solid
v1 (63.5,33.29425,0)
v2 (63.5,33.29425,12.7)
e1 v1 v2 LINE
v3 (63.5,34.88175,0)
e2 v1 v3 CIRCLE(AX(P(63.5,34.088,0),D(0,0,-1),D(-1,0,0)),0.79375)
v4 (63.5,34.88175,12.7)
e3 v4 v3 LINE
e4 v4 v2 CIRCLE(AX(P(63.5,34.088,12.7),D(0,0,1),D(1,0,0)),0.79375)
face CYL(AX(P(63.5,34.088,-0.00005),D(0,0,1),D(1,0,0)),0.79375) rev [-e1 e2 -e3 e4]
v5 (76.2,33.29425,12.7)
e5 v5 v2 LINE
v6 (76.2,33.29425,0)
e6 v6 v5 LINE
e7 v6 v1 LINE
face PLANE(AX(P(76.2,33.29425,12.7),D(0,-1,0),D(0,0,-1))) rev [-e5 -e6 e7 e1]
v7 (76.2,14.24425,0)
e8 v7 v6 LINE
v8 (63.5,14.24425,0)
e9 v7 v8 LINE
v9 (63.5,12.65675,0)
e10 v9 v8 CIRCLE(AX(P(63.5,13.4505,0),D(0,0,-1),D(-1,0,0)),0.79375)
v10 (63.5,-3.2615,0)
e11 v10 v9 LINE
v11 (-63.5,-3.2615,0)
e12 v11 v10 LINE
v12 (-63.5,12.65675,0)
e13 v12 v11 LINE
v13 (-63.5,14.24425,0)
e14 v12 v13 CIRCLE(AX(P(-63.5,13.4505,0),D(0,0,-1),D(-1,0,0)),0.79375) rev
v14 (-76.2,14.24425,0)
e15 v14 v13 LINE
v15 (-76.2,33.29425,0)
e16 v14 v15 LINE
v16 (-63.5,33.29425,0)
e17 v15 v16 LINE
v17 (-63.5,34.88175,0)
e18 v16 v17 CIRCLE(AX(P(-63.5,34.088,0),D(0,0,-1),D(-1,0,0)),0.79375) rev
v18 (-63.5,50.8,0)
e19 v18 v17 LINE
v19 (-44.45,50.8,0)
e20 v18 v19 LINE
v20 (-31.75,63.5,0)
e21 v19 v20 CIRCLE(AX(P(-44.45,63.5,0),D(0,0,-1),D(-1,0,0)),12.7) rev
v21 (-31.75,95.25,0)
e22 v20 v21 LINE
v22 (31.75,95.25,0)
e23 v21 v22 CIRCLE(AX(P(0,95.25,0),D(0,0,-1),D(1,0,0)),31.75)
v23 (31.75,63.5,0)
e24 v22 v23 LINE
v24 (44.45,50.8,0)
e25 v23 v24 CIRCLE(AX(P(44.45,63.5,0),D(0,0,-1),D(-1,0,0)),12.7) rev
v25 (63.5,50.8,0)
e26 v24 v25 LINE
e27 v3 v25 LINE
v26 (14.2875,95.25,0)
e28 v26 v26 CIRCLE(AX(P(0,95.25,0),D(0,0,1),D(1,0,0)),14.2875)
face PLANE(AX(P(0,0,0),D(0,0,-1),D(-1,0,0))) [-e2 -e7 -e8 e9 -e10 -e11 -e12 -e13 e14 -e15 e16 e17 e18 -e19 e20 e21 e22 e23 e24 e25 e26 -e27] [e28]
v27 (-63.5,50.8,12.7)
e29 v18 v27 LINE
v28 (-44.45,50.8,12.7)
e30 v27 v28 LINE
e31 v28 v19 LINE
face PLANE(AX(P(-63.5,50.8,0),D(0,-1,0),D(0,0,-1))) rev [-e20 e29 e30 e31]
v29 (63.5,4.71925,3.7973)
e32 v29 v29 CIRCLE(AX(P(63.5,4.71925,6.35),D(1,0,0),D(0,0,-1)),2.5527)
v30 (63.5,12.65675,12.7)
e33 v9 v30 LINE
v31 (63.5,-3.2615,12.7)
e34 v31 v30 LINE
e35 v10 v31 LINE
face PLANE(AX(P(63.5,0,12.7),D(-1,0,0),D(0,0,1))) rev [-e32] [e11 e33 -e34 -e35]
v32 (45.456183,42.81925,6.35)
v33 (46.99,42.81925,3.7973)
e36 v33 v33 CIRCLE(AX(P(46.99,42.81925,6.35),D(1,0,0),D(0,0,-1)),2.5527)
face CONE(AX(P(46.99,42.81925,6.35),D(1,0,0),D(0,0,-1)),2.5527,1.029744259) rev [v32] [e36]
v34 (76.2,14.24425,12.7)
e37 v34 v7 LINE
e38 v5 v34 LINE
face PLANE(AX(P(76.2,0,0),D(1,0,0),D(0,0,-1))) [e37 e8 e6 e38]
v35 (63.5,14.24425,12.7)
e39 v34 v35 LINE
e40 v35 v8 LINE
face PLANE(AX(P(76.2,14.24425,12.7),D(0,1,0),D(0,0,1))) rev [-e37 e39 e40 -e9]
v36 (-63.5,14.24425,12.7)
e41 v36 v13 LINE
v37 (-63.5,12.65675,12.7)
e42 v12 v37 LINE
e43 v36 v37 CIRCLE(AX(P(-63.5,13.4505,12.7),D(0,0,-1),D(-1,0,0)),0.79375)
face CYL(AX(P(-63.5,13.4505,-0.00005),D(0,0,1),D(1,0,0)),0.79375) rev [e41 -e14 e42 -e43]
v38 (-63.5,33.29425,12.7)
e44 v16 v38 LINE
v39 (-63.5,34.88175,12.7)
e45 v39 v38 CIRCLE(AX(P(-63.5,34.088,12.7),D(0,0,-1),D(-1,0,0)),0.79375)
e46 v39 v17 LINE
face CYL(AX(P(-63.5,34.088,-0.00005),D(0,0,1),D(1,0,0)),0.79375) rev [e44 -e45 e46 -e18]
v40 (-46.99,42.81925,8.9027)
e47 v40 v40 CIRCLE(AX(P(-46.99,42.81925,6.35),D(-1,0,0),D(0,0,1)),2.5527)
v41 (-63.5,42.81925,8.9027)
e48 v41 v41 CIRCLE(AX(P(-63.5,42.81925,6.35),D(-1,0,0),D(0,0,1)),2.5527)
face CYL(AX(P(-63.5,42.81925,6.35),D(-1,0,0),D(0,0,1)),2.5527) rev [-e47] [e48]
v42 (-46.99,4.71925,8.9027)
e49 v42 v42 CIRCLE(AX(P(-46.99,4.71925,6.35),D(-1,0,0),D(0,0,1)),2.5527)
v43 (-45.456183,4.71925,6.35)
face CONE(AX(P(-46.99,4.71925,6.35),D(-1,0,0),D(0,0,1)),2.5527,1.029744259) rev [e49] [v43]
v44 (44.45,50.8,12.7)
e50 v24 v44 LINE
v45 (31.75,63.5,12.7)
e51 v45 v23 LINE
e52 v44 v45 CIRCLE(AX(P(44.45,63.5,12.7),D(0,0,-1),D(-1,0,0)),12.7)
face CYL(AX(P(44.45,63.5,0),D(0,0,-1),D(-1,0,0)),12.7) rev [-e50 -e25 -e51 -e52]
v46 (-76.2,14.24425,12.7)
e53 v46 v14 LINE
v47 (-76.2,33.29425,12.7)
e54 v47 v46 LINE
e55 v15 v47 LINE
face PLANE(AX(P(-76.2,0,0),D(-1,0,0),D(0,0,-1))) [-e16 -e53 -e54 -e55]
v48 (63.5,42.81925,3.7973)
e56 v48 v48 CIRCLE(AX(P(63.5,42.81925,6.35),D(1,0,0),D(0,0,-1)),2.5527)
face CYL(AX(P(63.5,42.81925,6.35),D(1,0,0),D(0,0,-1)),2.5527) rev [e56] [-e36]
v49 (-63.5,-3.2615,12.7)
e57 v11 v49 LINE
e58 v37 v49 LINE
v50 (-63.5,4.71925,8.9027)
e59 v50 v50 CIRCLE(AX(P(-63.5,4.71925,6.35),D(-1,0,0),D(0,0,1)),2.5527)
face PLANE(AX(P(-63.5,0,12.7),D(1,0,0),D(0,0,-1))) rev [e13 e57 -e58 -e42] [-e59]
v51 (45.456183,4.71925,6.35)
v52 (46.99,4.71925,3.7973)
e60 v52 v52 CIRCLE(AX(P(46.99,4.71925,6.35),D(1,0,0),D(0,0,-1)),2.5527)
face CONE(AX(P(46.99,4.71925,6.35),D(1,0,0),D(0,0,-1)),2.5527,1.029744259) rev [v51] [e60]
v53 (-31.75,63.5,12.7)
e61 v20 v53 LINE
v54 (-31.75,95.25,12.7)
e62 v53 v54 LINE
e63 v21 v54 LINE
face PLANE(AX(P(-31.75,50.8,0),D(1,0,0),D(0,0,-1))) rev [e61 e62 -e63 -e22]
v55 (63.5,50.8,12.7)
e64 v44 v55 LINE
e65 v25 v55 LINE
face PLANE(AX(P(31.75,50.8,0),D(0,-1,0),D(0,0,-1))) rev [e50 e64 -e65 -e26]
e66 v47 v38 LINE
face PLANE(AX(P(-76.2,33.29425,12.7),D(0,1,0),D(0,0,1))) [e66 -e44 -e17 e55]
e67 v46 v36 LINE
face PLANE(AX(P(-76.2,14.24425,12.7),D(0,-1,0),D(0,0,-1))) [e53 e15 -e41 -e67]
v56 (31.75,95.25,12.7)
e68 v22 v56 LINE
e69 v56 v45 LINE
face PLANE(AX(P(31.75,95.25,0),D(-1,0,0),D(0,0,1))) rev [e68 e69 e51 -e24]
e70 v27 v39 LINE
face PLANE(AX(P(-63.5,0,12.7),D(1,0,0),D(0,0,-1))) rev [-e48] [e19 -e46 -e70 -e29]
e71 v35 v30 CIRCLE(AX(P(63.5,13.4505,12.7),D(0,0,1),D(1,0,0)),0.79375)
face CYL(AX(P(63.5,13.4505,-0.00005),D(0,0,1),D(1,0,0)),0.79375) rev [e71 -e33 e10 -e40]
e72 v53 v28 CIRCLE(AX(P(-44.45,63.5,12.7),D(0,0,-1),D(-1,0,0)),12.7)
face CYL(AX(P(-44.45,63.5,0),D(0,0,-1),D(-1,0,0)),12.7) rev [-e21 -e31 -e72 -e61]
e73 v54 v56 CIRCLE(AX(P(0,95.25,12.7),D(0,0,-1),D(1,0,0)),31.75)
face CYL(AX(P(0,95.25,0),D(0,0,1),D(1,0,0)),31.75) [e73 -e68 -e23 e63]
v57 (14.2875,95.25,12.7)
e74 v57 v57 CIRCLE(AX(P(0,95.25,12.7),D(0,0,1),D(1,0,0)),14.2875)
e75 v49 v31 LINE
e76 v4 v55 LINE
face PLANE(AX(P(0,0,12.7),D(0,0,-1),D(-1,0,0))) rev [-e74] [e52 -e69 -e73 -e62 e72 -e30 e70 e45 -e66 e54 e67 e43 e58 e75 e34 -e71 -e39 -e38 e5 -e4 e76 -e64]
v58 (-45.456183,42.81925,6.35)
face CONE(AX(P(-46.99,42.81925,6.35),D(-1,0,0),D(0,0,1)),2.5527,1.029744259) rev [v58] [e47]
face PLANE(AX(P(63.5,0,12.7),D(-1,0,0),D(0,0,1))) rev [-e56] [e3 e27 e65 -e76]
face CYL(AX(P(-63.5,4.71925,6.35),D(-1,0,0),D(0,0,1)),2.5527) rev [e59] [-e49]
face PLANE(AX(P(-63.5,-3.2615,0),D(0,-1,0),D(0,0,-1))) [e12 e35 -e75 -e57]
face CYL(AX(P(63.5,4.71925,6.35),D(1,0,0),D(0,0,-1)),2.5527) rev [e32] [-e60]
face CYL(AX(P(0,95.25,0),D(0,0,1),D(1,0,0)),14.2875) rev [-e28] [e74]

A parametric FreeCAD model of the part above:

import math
import FreeCAD as App
import Part
import Sketcher
Q = App.Units.Quantity


def edges_at(feature, points):
    """Names of the edges that pass closest to the given points."""
    edges = feature.Shape.Edges
    near = lambda p: min(range(len(edges)), key=lambda i: edges[i].distToShape(Part.Vertex(*p))[0])
    return sorted({f"Edge{near(p) + 1}" for p in points})


def add_polygon(sketch, points):
    """Adds a closed chain of lines whose ends are joined by coincident constraints."""
    first, n = sketch.GeometryCount, len(points)
    for a, b in zip(points, points[1:] + points[:1]):
        sketch.addGeometry(Part.LineSegment(App.Vector(*a, 0), App.Vector(*b, 0)), False)
    for i in range(n):
        sketch.addConstraint(Sketcher.Constraint("Coincident", first + i, 2, first + (i + 1) % n, 1))

doc = App.newDocument("Part")
body = doc.addObject("PartDesign::Body", "Body")

# Sketch on XY plane
sketch1 = body.newObject("Sketcher::SketchObject", "Sketch")
sketch1.AttachmentSupport = (doc.getObject("XY_Plane"), [""])
sketch1.MapMode = "FlatFace"
add_polygon(sketch1, [(-64, 152), (-64, 0), (64, 0), (64, 152)])  # lines 0-3
sketch1.addConstraint(Sketcher.Constraint("Vertical", 0))
sketch1.addConstraint(Sketcher.Constraint("Horizontal", 1))
sketch1.addConstraint(Sketcher.Constraint("Vertical", 2))
sketch1.addConstraint(Sketcher.Constraint("Horizontal", 3))
sketch1.addConstraint(Sketcher.Constraint("Symmetric", 0, 2, 1, 2, -1, 1))
sketch1.addConstraint(Sketcher.Constraint("DistanceX", 1, 1, 1, 2, Q("5 in")))
sketch1.addConstraint(Sketcher.Constraint("DistanceY", 0, 2, 0, 1, Q("6 in")))
pad1 = body.newObject("PartDesign::Pad", "Pad")
pad1.Profile = sketch1
pad1.Length = Q("0.5 in")

# Sketch on XY plane
sketch2 = body.newObject("Sketcher::SketchObject", "Sketch001")
sketch2.AttachmentSupport = (doc.getObject("XY_Plane"), [""])
sketch2.MapMode = "FlatFace"
sketch2.AttachmentOffset = App.Placement(App.Vector(0, 0, 0.5 * 25.4), App.Rotation())
sketch2.addGeometry(Part.Circle(App.Vector(0, 95, 0), App.Vector(0, 0, 1), 14), False)
sketch2.addGeometry(Part.LineSegment(App.Vector(32, 95, 0), App.Vector(32, 51, 0)), False)
sketch2.addGeometry(Part.LineSegment(App.Vector(32, 51, 0), App.Vector(64, 51, 0)), False)
sketch2.addGeometry(Part.LineSegment(App.Vector(64, 51, 0), App.Vector(64, 152, 0)), False)
sketch2.addGeometry(Part.LineSegment(App.Vector(64, 152, 0), App.Vector(-64, 152, 0)), False)
sketch2.addGeometry(Part.LineSegment(App.Vector(-64, 152, 0), App.Vector(-64, 51, 0)), False)
sketch2.addGeometry(Part.LineSegment(App.Vector(-64, 51, 0), App.Vector(-32, 51, 0)), False)
sketch2.addGeometry(Part.LineSegment(App.Vector(-32, 51, 0), App.Vector(-32, 95, 0)), False)
sketch2.addGeometry(Part.ArcOfCircle(Part.Circle(App.Vector(0, 95, 0), App.Vector(0, 0, 1), 32), math.radians(0), math.radians(180)), False)
sketch2.addConstraint(Sketcher.Constraint("Coincident", 1, 2, 2, 1))
sketch2.addConstraint(Sketcher.Constraint("Coincident", 2, 2, 3, 1))
sketch2.addConstraint(Sketcher.Constraint("Coincident", 3, 2, 4, 1))
sketch2.addConstraint(Sketcher.Constraint("Coincident", 4, 2, 5, 1))
sketch2.addConstraint(Sketcher.Constraint("Coincident", 5, 2, 6, 1))
sketch2.addConstraint(Sketcher.Constraint("Coincident", 6, 2, 7, 1))
sketch2.addConstraint(Sketcher.Constraint("Tangent", 7, 2, 8, 2))
sketch2.addConstraint(Sketcher.Constraint("Tangent", 8, 1, 1, 1))
sketch2.addConstraint(Sketcher.Constraint("Vertical", 1))
sketch2.addConstraint(Sketcher.Constraint("Horizontal", 2))
sketch2.addConstraint(Sketcher.Constraint("Vertical", 3))
sketch2.addConstraint(Sketcher.Constraint("Horizontal", 4))
sketch2.addConstraint(Sketcher.Constraint("Vertical", 5))
sketch2.addConstraint(Sketcher.Constraint("Horizontal", 6))
sketch2.addConstraint(Sketcher.Constraint("Vertical", 7))
sketch2.addConstraint(Sketcher.Constraint("Coincident", 8, 3, 0, 3))
sketch2.addConstraint(Sketcher.Constraint("Symmetric", 2, 2, 5, 2, -2))
sketch2.addConstraint(Sketcher.Constraint("PointOnObject", 0, 3, -2))
sketch2.addConstraint(Sketcher.Constraint("DistanceX", 4, 2, 4, 1, Q("5 in")))
sketch2.addConstraint(Sketcher.Constraint("DistanceY", 3, 1, 3, 2, Q("4 in")))
sketch2.addConstraint(Sketcher.Constraint("Radius", 8, Q("1.25 in")))
sketch2.addConstraint(Sketcher.Constraint("Diameter", 0, Q("1.125 in")))
sketch2.addConstraint(Sketcher.Constraint("DistanceY", -1, 1, 1, 2, Q("2 in")))
sketch2.addConstraint(Sketcher.Constraint("DistanceY", 1, 2, 1, 1, Q("1.75 in")))
pocket1 = body.newObject("PartDesign::Pocket", "Pocket")
pocket1.Profile = sketch2
pocket1.Type = "ThroughAll"
doc.recompute()

fillet = body.newObject("PartDesign::Fillet", "Fillet")
fillet.Base = (pocket1, edges_at(pocket1, [(-31.75, 50.8, 6.35), (31.75, 50.8, 6.35)]))
fillet.Radius = Q("0.5 in")

# Sketch on XY plane
sketch3 = body.newObject("Sketcher::SketchObject", "Sketch002")
sketch3.AttachmentSupport = (doc.getObject("XY_Plane"), [""])
sketch3.MapMode = "FlatFace"
sketch3.AttachmentOffset = App.Placement(App.Vector(0, 0, 0.5 * 25.4), App.Rotation())
add_polygon(sketch3, [(-63.5, 0), (-63.5, -3.3), (63.5, -3.3), (63.5, 0)])  # lines 0-3
sketch3.addConstraint(Sketcher.Constraint("Vertical", 0))
sketch3.addConstraint(Sketcher.Constraint("Horizontal", 1))
sketch3.addConstraint(Sketcher.Constraint("Vertical", 2))
sketch3.addConstraint(Sketcher.Constraint("Horizontal", 3))
sketch3.addConstraint(Sketcher.Constraint("Symmetric", 2, 2, 3, 2, -1, 1))
sketch3.addConstraint(Sketcher.Constraint("DistanceX", 1, 1, 1, 2, Q("5 in")))
sketch3.addConstraint(Sketcher.Constraint("DistanceY", 0, 2, 0, 1, Q("3.2615 mm")))
pad2 = body.newObject("PartDesign::Pad", "Pad001")
pad2.Profile = sketch3
pad2.Length = Q("0.5 in")
pad2.Reversed = True

# Sketch on XZ plane
sketch4 = body.newObject("Sketcher::SketchObject", "Sketch003")
sketch4.AttachmentSupport = (doc.getObject("XZ_Plane"), [""])
sketch4.MapMode = "FlatFace"
sketch4.AttachmentOffset = App.Placement(App.Vector(0, 0, -42.81925), App.Rotation())
add_polygon(sketch4, [(45.5, 6.3), (63.5, 6.3), (63.5, 3.8), (47, 3.8)])  # lines 0-3
sketch4.addGeometry(Part.LineSegment(App.Vector(63.5, 6.3, 0), App.Vector(45.5, 6.3, 0)), True)  # axis
sketch4.addConstraint(Sketcher.Constraint("Horizontal", 0))
sketch4.addConstraint(Sketcher.Constraint("Vertical", 1))
sketch4.addConstraint(Sketcher.Constraint("Horizontal", 2))
sketch4.addConstraint(Sketcher.Constraint("Horizontal", 4))
sketch4.addConstraint(Sketcher.Constraint("Coincident", 4, 1, 0, 2))
sketch4.addConstraint(Sketcher.Constraint("Equal", 0, 4))
sketch4.addConstraint(Sketcher.Constraint("Angle", 3, Q("121 deg")))
sketch4.addConstraint(Sketcher.Constraint("DistanceX", 2, 2, 2, 1, Q("0.65 in")))
sketch4.addConstraint(Sketcher.Constraint("DistanceX", -1, 1, 0, 2, Q("2.5 in")))
sketch4.addConstraint(Sketcher.Constraint("DistanceY", -1, 1, 0, 2, Q("0.25 in")))
sketch4.addConstraint(Sketcher.Constraint("DistanceY", 1, 2, 1, 1, Q("0.1005 in")))
groove = body.newObject("PartDesign::Groove", "Groove")
groove.Profile = sketch4
groove.ReferenceAxis = (sketch4, ["Axis0"])
groove.Angle = 360
doc.recompute()

linearpattern = body.newObject("PartDesign::LinearPattern", "LinearPattern")
linearpattern.Originals = [groove]
linearpattern.Direction = (doc.getObject("Y_Axis"), [""])
linearpattern.Mode = "offset"
linearpattern.Offset = Q("1.5 in")
linearpattern.Occurrences = 2
linearpattern.Reversed = True
body.Tip = linearpattern

# Sketch on YZ plane
sketch5 = body.newObject("Sketcher::SketchObject", "Sketch004")
sketch5.AttachmentSupport = (doc.getObject("YZ_Plane"), [""])
sketch5.MapMode = "FlatFace"
sketch5.AttachmentOffset = App.Placement(App.Vector(0, 0, 2.5 * 25.4), App.Rotation())
add_polygon(sketch5, [(33, 13), (14, 13), (14, 0), (33, 0)])  # lines 0-3
sketch5.addConstraint(Sketcher.Constraint("Horizontal", 0))
sketch5.addConstraint(Sketcher.Constraint("Vertical", 1))
sketch5.addConstraint(Sketcher.Constraint("Horizontal", 2))
sketch5.addConstraint(Sketcher.Constraint("Vertical", 3))
sketch5.addConstraint(Sketcher.Constraint("PointOnObject", 1, 2, -1))
sketch5.addConstraint(Sketcher.Constraint("DistanceY", 1, 2, 1, 1, Q("0.5 in")))
sketch5.addConstraint(Sketcher.Constraint("DistanceX", 0, 2, 0, 1, Q("0.75 in")))
sketch5.addConstraint(Sketcher.Constraint("DistanceX", -1, 1, 0, 2, Q("14.24425 mm")))
pad3 = body.newObject("PartDesign::Pad", "Pad002")
pad3.Profile = sketch5
pad3.Length = Q("0.5 in")

# Sketch on XY plane
sketch6 = body.newObject("Sketcher::SketchObject", "Sketch005")
sketch6.AttachmentSupport = (doc.getObject("XY_Plane"), [""])
sketch6.MapMode = "FlatFace"
sketch6.AttachmentOffset = App.Placement(App.Vector(0, 0, 0.5 * 25.4), App.Rotation())
sketch6.addGeometry(Part.Circle(App.Vector(63.5, 34.1, 0), App.Vector(0, 0, 1), 0.8), False)
sketch6.addGeometry(Part.Circle(App.Vector(63.5, 13.5, 0), App.Vector(0, 0, 1), 0.8), False)
sketch6.addConstraint(Sketcher.Constraint("Equal", 0, 1))
sketch6.addConstraint(Sketcher.Constraint("Vertical", 0, 3, 1, 3))
sketch6.addConstraint(Sketcher.Constraint("Diameter", 0, Q("0.0625 in")))
sketch6.addConstraint(Sketcher.Constraint("DistanceX", -1, 1, 0, 3, Q("2.5 in")))
sketch6.addConstraint(Sketcher.Constraint("DistanceY", 1, 3, 0, 3, Q("0.8125 in")))
sketch6.addConstraint(Sketcher.Constraint("DistanceY", -1, 1, 0, 3, Q("34.088 mm")))
pocket2 = body.newObject("PartDesign::Pocket", "Pocket001")
pocket2.Profile = sketch6
pocket2.Type = "ThroughAll"
doc.recompute()

mirrored = body.newObject("PartDesign::Mirrored", "Mirrored")
mirrored.Originals = [pocket2, pad3, groove]
mirrored.MirrorPlane = (doc.getObject("YZ_Plane"), [""])
body.Tip = mirrored

# Sketch on XZ plane
sketch7 = body.newObject("Sketcher::SketchObject", "Sketch006")
sketch7.AttachmentSupport = (doc.getObject("XZ_Plane"), [""])
sketch7.MapMode = "FlatFace"
sketch7.AttachmentOffset = App.Placement(App.Vector(0, 0, -4.71925), App.Rotation())
add_polygon(sketch7, [(-63.5, 6.3), (-45.5, 6.3), (-47, 3.8), (-63.5, 3.8)])  # lines 0-3
sketch7.addGeometry(Part.LineSegment(App.Vector(-45.5, 6.3, 0), App.Vector(-63.5, 6.3, 0)), True)  # axis
sketch7.addConstraint(Sketcher.Constraint("Horizontal", 0))
sketch7.addConstraint(Sketcher.Constraint("Horizontal", 2))
sketch7.addConstraint(Sketcher.Constraint("Vertical", 3))
sketch7.addConstraint(Sketcher.Constraint("Horizontal", 4))
sketch7.addConstraint(Sketcher.Constraint("Coincident", 4, 1, 0, 2))
sketch7.addConstraint(Sketcher.Constraint("Vertical", 2, 2, 4, 2))
sketch7.addConstraint(Sketcher.Constraint("Angle", 1, Q("-121 deg")))
sketch7.addConstraint(Sketcher.Constraint("DistanceX", 2, 2, 2, 1, Q("0.65 in")))
sketch7.addConstraint(Sketcher.Constraint("DistanceX", 2, 2, -1, 1, Q("2.5 in")))
sketch7.addConstraint(Sketcher.Constraint("DistanceY", -1, 1, 0, 2, Q("0.25 in")))
sketch7.addConstraint(Sketcher.Constraint("DistanceY", 3, 1, 3, 2, Q("0.1005 in")))
groove2 = body.newObject("PartDesign::Groove", "Groove001")
groove2.Profile = sketch7
groove2.ReferenceAxis = (sketch7, ["Axis0"])
groove2.Angle = 360

doc.recompute()
